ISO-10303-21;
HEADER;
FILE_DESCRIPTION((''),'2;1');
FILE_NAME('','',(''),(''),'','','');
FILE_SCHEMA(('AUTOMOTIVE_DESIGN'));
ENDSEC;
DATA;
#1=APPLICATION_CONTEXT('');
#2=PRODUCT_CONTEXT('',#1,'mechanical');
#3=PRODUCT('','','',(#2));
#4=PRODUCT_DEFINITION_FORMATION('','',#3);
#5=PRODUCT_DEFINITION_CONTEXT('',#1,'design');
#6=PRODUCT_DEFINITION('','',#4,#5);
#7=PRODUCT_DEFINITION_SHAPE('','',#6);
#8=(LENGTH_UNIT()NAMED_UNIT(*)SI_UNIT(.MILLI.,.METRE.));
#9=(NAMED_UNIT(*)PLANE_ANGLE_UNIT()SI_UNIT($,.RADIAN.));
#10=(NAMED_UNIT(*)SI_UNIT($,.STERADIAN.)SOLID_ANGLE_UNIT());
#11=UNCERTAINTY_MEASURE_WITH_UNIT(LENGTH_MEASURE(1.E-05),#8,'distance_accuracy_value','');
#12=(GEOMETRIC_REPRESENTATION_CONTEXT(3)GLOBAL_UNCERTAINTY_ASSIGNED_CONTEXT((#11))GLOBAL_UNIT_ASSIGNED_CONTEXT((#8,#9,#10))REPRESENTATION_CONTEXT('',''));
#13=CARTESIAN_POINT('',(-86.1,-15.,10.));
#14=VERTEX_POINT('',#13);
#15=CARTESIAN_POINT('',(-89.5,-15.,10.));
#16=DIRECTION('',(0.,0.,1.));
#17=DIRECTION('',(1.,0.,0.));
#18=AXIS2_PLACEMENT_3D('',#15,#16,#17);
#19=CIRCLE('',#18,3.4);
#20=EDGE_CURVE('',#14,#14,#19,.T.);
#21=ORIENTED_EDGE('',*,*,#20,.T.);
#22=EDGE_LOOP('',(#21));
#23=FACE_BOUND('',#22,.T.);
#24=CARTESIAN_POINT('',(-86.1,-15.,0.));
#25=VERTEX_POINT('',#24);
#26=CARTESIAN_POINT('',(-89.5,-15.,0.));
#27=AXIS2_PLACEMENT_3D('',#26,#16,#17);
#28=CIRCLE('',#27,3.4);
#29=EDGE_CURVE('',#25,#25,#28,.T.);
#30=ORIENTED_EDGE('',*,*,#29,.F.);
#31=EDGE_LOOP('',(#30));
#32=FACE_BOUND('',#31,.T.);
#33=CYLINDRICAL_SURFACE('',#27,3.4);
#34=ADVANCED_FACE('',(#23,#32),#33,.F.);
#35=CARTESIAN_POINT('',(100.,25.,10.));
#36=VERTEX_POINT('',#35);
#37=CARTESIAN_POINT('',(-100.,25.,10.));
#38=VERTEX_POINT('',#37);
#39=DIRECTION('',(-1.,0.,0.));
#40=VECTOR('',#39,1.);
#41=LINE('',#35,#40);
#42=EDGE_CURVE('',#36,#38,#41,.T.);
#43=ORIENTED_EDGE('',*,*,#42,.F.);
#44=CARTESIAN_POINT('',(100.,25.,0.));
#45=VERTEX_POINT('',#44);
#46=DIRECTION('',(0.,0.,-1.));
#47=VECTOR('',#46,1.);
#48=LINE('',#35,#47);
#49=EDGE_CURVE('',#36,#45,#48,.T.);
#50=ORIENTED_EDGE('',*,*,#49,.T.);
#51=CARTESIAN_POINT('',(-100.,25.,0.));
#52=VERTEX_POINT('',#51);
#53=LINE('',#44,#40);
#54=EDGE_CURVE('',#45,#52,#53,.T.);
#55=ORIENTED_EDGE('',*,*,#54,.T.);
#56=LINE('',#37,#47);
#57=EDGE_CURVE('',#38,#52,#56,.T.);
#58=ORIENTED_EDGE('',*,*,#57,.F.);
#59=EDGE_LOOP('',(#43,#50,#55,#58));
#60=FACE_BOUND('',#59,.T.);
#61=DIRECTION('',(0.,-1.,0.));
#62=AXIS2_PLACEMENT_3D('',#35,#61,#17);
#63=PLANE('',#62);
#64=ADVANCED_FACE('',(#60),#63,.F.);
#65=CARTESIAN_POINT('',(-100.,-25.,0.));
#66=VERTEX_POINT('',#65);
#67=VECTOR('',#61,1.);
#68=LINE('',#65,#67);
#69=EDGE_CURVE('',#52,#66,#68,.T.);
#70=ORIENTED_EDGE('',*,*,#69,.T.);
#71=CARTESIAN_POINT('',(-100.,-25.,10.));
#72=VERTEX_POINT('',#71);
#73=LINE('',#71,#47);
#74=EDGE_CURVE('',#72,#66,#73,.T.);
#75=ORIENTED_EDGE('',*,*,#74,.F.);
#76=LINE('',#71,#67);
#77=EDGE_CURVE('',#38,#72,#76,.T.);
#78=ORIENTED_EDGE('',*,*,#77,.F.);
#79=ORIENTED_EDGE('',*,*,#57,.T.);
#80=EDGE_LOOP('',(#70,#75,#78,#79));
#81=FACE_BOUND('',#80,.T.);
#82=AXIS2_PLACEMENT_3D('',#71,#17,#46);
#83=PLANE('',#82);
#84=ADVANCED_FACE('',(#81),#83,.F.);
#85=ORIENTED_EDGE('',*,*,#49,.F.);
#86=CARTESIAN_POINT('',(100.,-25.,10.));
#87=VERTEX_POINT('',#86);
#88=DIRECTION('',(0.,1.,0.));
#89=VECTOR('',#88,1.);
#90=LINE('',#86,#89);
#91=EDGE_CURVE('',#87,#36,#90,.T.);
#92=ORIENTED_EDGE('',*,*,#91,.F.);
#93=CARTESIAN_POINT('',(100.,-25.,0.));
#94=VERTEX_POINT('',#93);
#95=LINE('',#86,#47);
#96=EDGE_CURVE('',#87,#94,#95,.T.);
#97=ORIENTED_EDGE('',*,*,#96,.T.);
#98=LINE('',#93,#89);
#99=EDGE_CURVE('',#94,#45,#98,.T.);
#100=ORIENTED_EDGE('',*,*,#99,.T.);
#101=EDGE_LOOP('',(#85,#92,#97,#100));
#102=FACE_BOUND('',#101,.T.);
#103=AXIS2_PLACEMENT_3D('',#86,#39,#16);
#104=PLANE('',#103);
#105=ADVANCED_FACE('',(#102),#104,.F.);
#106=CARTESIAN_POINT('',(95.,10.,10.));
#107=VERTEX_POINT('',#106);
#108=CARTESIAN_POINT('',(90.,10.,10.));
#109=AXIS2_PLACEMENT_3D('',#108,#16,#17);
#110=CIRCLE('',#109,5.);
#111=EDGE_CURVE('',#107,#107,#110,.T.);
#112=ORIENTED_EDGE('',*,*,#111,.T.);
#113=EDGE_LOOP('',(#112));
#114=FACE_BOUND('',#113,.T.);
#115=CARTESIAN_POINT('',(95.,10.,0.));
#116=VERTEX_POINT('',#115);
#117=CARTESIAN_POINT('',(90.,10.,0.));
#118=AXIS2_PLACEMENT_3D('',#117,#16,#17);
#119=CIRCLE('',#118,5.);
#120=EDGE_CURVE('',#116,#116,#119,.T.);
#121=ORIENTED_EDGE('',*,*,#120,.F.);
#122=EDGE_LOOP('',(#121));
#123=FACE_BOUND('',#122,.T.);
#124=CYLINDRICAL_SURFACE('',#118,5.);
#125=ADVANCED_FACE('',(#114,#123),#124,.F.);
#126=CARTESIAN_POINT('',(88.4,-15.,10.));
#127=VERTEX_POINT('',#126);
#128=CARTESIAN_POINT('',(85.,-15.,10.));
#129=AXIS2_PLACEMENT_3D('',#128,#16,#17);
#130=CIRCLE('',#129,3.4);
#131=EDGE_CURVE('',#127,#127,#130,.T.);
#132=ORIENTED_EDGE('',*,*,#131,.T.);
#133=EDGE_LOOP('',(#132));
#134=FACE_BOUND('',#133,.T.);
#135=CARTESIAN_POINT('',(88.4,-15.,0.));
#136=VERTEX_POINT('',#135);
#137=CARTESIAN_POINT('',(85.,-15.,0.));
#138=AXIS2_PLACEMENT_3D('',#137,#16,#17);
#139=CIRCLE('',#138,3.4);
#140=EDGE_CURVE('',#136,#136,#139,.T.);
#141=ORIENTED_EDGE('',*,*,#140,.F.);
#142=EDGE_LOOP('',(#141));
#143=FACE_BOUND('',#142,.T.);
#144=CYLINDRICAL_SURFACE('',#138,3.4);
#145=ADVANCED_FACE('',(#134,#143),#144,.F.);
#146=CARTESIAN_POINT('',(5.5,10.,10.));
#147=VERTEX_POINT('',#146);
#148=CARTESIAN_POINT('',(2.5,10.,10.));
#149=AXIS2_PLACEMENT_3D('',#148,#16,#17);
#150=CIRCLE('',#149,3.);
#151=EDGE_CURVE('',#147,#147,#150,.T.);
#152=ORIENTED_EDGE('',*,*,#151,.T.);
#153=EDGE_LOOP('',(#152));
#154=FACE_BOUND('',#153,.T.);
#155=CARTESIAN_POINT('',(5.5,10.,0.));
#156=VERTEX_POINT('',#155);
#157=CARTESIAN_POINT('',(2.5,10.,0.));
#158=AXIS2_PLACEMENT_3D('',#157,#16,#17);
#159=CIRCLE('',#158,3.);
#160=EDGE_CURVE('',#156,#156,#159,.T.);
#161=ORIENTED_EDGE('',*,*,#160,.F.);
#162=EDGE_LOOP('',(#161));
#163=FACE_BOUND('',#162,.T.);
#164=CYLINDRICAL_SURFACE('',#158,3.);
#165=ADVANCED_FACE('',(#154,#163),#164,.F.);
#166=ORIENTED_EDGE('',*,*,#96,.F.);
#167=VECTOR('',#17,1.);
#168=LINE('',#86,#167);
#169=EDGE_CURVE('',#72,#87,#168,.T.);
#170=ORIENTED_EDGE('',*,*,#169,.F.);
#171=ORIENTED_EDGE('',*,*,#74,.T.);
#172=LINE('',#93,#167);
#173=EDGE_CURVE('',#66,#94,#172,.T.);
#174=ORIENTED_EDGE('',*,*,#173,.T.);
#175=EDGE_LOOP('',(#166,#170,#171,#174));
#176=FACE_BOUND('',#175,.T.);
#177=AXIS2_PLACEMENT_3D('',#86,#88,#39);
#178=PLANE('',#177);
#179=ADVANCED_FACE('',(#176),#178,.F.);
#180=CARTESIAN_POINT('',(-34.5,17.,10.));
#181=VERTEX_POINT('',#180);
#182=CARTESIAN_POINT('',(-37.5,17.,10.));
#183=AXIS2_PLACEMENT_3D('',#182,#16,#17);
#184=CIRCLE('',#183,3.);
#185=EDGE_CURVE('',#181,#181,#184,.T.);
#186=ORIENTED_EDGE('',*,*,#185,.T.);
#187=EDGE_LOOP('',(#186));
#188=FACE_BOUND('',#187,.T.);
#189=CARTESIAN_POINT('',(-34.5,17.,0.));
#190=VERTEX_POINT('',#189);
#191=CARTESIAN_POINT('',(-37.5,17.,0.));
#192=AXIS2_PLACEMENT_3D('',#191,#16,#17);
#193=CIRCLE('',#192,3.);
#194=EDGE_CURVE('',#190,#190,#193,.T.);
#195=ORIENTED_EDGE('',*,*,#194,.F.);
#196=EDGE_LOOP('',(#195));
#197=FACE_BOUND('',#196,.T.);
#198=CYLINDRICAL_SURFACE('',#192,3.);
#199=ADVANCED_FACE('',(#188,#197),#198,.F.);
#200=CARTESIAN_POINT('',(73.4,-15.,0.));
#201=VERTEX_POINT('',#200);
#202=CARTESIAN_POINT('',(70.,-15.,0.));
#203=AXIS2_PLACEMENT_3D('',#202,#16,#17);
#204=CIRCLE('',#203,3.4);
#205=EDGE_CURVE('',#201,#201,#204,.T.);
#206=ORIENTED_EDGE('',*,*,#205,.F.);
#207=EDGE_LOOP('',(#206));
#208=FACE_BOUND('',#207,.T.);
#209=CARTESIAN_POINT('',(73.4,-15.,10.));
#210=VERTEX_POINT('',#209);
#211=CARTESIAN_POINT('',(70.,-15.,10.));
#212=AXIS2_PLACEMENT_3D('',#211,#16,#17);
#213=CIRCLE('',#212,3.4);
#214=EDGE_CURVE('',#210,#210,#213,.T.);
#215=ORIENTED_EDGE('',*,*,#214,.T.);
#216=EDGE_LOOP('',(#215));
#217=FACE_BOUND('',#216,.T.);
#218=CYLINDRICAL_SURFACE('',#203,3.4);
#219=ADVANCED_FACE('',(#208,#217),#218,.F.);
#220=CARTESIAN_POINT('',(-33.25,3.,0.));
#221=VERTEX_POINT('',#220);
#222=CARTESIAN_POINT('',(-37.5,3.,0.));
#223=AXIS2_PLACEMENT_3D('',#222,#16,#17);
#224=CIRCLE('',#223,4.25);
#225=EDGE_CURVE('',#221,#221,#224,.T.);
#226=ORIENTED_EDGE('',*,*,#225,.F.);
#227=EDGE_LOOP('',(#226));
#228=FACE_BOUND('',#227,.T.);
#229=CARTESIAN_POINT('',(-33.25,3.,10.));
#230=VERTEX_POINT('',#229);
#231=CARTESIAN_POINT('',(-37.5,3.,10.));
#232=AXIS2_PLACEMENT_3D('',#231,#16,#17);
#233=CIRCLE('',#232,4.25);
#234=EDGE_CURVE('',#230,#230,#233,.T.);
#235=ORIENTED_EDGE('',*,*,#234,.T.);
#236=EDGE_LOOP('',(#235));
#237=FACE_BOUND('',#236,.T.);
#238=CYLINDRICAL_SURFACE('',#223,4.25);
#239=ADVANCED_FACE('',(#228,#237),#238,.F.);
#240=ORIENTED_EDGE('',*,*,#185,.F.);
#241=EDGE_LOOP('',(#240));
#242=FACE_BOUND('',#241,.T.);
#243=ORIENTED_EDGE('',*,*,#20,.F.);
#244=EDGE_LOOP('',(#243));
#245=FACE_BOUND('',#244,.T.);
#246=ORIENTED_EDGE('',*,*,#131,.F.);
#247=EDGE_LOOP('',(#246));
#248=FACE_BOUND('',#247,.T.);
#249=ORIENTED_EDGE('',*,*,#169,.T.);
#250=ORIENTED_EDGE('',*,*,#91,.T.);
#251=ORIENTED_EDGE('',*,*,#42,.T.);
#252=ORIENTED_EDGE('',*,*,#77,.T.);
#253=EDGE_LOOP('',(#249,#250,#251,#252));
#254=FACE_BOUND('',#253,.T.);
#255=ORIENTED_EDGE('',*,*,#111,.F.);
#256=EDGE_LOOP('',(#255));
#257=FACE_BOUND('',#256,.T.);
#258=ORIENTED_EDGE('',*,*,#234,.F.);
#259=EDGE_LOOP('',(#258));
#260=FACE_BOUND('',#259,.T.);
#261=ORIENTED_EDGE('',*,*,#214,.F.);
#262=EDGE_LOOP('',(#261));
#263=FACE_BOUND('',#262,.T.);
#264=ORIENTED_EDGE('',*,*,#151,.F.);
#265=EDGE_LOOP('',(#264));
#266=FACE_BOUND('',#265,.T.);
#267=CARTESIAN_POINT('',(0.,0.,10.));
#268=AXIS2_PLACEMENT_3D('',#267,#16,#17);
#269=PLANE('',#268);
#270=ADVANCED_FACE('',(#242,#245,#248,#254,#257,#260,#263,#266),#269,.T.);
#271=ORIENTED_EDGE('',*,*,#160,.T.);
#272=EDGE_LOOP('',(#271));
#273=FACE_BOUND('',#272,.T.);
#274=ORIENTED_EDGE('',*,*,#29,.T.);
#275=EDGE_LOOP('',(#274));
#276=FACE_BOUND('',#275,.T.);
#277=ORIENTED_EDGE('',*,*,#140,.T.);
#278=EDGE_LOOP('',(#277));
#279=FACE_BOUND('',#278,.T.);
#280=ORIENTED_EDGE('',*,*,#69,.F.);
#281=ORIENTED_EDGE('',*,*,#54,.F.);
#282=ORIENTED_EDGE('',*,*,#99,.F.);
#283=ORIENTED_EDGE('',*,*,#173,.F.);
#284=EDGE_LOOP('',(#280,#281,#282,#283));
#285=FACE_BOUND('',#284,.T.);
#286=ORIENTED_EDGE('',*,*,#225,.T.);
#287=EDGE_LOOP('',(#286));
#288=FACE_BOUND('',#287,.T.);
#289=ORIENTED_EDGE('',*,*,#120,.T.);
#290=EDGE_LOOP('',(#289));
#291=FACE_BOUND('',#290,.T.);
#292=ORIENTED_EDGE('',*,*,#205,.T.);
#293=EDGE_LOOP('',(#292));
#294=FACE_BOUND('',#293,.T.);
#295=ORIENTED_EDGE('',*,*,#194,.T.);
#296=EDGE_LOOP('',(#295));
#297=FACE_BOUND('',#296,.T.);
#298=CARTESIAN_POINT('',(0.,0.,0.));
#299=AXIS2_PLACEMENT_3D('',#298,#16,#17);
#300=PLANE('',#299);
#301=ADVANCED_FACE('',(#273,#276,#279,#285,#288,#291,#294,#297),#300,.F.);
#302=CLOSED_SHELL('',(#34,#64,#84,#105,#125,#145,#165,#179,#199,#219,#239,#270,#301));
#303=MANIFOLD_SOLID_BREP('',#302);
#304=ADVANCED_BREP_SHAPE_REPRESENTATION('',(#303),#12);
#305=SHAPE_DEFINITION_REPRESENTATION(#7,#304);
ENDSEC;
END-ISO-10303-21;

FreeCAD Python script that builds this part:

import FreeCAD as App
import Part
import Sketcher

doc = App.newDocument("Part")
params = doc.addObject("Spreadsheet::Sheet", "Params")
for row, (alias, value) in enumerate([
    ("sketch1_width", "200 mm"),
    ("sketch1_height", "50 mm"),
    ("pad1_length", "10 mm"),
    ("sketch2_diameter", "10 mm"),
    ("sketch2_diameter2", "6 mm"),
    ("sketch2_diameter3", "8.5 mm"),
    ("sketch3_diameter", "6.8 mm"),
], start=1):
    params.set(f"A{row}", alias)
    params.set(f"B{row}", "=" + value)
    params.setAlias(f"B{row}", alias)

body = doc.addObject("PartDesign::Body", "Body")

sketch1 = body.newObject("Sketcher::SketchObject", "Sketch")
sketch1.AttachmentSupport = (doc.getObject("XY_Plane"), [""])
sketch1.MapMode = "FlatFace"
sketch1.addGeometry(Part.LineSegment(App.Vector(-100, 25, 0), App.Vector(-100, -25, 0)), False)
sketch1.addGeometry(Part.LineSegment(App.Vector(-100, -25, 0), App.Vector(100, -25, 0)), False)
sketch1.addGeometry(Part.LineSegment(App.Vector(100, -25, 0), App.Vector(100, 25, 0)), False)
sketch1.addGeometry(Part.LineSegment(App.Vector(100, 25, 0), App.Vector(-100, 25, 0)), False)
sketch1.addConstraint(Sketcher.Constraint("Coincident", 0, 2, 1, 1))
sketch1.addConstraint(Sketcher.Constraint("Coincident", 1, 2, 2, 1))
sketch1.addConstraint(Sketcher.Constraint("Coincident", 2, 2, 3, 1))
sketch1.addConstraint(Sketcher.Constraint("Coincident", 3, 2, 0, 1))
sketch1.addConstraint(Sketcher.Constraint("Vertical", 0))
sketch1.addConstraint(Sketcher.Constraint("Horizontal", 1))
sketch1.addConstraint(Sketcher.Constraint("Vertical", 2))
sketch1.addConstraint(Sketcher.Constraint("Horizontal", 3))
sketch1.addConstraint(Sketcher.Constraint("Symmetric", 0, 2, 2, 2, -1, 1))
sketch1.addConstraint(Sketcher.Constraint("DistanceX", 1, 1, 1, 2, 200.0))
sketch1.addConstraint(Sketcher.Constraint("DistanceY", 0, 2, 0, 1, 50.0))
sketch1.setExpression("Constraints[9]", "Params.sketch1_width")
sketch1.setExpression("Constraints[10]", "Params.sketch1_height")
pad1 = body.newObject("PartDesign::Pad", "Pad")
pad1.Profile = sketch1
pad1.setExpression("Length", "Params.pad1_length")

sketch2 = body.newObject("Sketcher::SketchObject", "Sketch001")
sketch2.AttachmentSupport = (doc.getObject("XY_Plane"), [""])
sketch2.MapMode = "FlatFace"
sketch2.AttachmentOffset = App.Placement(App.Vector(0, 0, 10), App.Rotation())
sketch2.addGeometry(Part.Circle(App.Vector(90, 10, 0), App.Vector(0, 0, 1), 5), False)
sketch2.addGeometry(Part.Circle(App.Vector(2.5, 10, 0), App.Vector(0, 0, 1), 3), False)
sketch2.addGeometry(Part.Circle(App.Vector(-37.5, 17, 0), App.Vector(0, 0, 1), 3), False)
sketch2.addGeometry(Part.Circle(App.Vector(-37.5, 3, 0), App.Vector(0, 0, 1), 4.2), False)
sketch2.addConstraint(Sketcher.Constraint("Equal", 1, 2))
sketch2.addConstraint(Sketcher.Constraint("Horizontal", 0, 3, 1, 3))
sketch2.addConstraint(Sketcher.Constraint("Vertical", 2, 3, 3, 3))
sketch2.addConstraint(Sketcher.Constraint("Diameter", 0, 10.0))
sketch2.addConstraint(Sketcher.Constraint("Diameter", 1, 6.0))
sketch2.addConstraint(Sketcher.Constraint("Diameter", 3, 8.5))
sketch2.addConstraint(Sketcher.Constraint("DistanceX", -1, 1, 0, 3, 90.0))
sketch2.addConstraint(Sketcher.Constraint("DistanceY", -1, 1, 0, 3, 10.0))
sketch2.addConstraint(Sketcher.Constraint("DistanceY", -1, 1, 2, 3, 17.0))
sketch2.addConstraint(Sketcher.Constraint("DistanceY", -1, 1, 3, 3, 3.0))
sketch2.addConstraint(Sketcher.Constraint("DistanceX", 2, 3, 1, 3, 40.0))
sketch2.addConstraint(Sketcher.Constraint("DistanceX", -1, 1, 1, 3, 2.5))
sketch2.setExpression("Constraints[3]", "Params.sketch2_diameter")
sketch2.setExpression("Constraints[4]", "Params.sketch2_diameter2")
sketch2.setExpression("Constraints[5]", "Params.sketch2_diameter3")
pocket1 = body.newObject("PartDesign::Pocket", "Pocket")
pocket1.Profile = sketch2
pocket1.Type = "ThroughAll"

sketch3 = body.newObject("Sketcher::SketchObject", "Sketch002")
sketch3.AttachmentSupport = (doc.getObject("XY_Plane"), [""])
sketch3.MapMode = "FlatFace"
sketch3.AttachmentOffset = App.Placement(App.Vector(0, 0, 10), App.Rotation())
sketch3.addGeometry(Part.Circle(App.Vector(-89.5, -15, 0), App.Vector(0, 0, 1), 3.4), False)
sketch3.addGeometry(Part.Circle(App.Vector(70, -15, 0), App.Vector(0, 0, 1), 3.4), False)
sketch3.addGeometry(Part.Circle(App.Vector(85, -15, 0), App.Vector(0, 0, 1), 3.4), False)
sketch3.addConstraint(Sketcher.Constraint("Equal", 0, 1))
sketch3.addConstraint(Sketcher.Constraint("Equal", 1, 2))
sketch3.addConstraint(Sketcher.Constraint("Horizontal", 0, 3, 1, 3))
sketch3.addConstraint(Sketcher.Constraint("Horizontal", 1, 3, 2, 3))
sketch3.addConstraint(Sketcher.Constraint("Diameter", 0, 6.8))
sketch3.addConstraint(Sketcher.Constraint("DistanceY", 0, 3, -1, 1, 15.0))
sketch3.addConstraint(Sketcher.Constraint("DistanceX", -1, 1, 1, 3, 70.0))
sketch3.addConstraint(Sketcher.Constraint("DistanceX", -1, 1, 2, 3, 85.0))
sketch3.addConstraint(Sketcher.Constraint("DistanceX", 0, 3, -1, 1, 89.5))
sketch3.setExpression("Constraints[4]", "Params.sketch3_diameter")
pocket2 = body.newObject("PartDesign::Pocket", "Pocket001")
pocket2.Profile = sketch3
pocket2.Type = "ThroughAll"

doc.recompute()
